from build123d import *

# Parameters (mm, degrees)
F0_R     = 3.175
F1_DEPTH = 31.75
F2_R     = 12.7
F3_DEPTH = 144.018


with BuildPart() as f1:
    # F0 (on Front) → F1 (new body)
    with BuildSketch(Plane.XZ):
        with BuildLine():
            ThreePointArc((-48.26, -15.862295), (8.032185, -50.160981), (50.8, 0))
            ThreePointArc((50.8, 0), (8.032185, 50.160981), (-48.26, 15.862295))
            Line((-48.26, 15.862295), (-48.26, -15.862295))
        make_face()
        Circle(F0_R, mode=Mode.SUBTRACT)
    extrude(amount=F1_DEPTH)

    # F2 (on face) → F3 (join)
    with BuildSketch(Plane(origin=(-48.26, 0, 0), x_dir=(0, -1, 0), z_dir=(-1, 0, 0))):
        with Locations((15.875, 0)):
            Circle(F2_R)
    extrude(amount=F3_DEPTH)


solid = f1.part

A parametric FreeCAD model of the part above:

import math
import FreeCAD as App
import Part
import Sketcher
from FreeCAD import Vector
Q = App.Units.Quantity

doc = App.newDocument("Part")
body = doc.addObject("PartDesign::Body", "Body")

sketch1 = body.newObject("Sketcher::SketchObject", "Sketch")
sketch1.AttachmentSupport = (doc.getObject("XZ_Plane"), [""])
sketch1.MapMode = "FlatFace"
sketch1.addGeometry([
    Part.ArcOfCircle(Part.Circle(Vector(0, 0, 0), Vector(0, 0, 1), 50.8), math.radians(-162), math.radians(0)),
    Part.ArcOfCircle(Part.Circle(Vector(0, 0, 0), Vector(0, 0, 1), 50.8), math.radians(0), math.radians(162)),
    Part.LineSegment(Vector(-48.3, 15.9, 0), Vector(-48.3, -15.9, 0)),
    Part.Circle(Vector(0, 0, 0), Vector(0, 0, 1), 3.2),
], False)
sketch1.addConstraint([
    Sketcher.Constraint("Tangent", 0, 2, 1, 1),
    Sketcher.Constraint("Coincident", 1, 2, 2, 1),
    Sketcher.Constraint("Coincident", 2, 2, 0, 1),
    Sketcher.Constraint("Vertical", 2),
    Sketcher.Constraint("Coincident", 0, 3, -1, 1),
    Sketcher.Constraint("Coincident", 3, 3, -1, 1),
    Sketcher.Constraint("Equal", 0, 1),
    Sketcher.Constraint("PointOnObject", 0, 2, -1),
    Sketcher.Constraint("Radius", 0, Q("2 in")),
    Sketcher.Constraint("Diameter", 3, Q("0.25 in")),
    Sketcher.Constraint("DistanceX", 1, 2, -1, 1, Q("1.9 in")),
])
pad1 = body.newObject("PartDesign::Pad", "Pad")
pad1.Profile = sketch1
pad1.Length = Q("1.25 in")

sketch2 = body.newObject("Sketcher::SketchObject", "Sketch001")
sketch2.AttachmentSupport = (doc.getObject("YZ_Plane"), [""])
sketch2.MapMode = "FlatFace"
sketch2.AttachmentOffset = App.Placement(Vector(0, 0, -1.9 * 25.4), App.Rotation())
sketch2.addGeometry(Part.Circle(Vector(-16, 0, 0), Vector(0, 0, 1), 13), False)
sketch2.addConstraint([
    Sketcher.Constraint("PointOnObject", 0, 3, -1),
    Sketcher.Constraint("Diameter", 0, Q("1 in")),
    Sketcher.Constraint("DistanceX", 0, 3, -1, 1, Q("0.625 in")),
])
pad2 = body.newObject("PartDesign::Pad", "Pad001")
pad2.Profile = sketch2
pad2.Length = Q("5.67 in")
pad2.Reversed = True

doc.recompute()
